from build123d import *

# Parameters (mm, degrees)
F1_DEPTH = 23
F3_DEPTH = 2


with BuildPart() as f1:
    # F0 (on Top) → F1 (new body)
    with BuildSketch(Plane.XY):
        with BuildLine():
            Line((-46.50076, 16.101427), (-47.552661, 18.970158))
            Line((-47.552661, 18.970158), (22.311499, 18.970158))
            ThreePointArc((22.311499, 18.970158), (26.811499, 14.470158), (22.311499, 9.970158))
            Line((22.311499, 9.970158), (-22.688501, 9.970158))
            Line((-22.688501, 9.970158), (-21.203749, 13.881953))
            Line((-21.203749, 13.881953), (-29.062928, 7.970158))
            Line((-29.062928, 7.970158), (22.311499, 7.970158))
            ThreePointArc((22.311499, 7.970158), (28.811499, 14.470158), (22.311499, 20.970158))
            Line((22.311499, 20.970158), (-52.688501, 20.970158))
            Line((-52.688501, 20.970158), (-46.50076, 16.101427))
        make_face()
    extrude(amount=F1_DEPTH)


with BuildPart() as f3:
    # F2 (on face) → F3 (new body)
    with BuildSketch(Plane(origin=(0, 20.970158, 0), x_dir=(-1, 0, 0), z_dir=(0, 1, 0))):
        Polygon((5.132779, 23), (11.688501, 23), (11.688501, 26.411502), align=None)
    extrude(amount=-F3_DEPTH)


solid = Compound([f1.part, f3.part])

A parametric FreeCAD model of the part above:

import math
import FreeCAD as App
import Part
import Sketcher
Q = App.Units.Quantity


def add_polygon(sketch, points):
    """Adds a closed chain of lines whose ends are joined by coincident constraints."""
    first, n = sketch.GeometryCount, len(points)
    for a, b in zip(points, points[1:] + points[:1]):
        sketch.addGeometry(Part.LineSegment(App.Vector(*a, 0), App.Vector(*b, 0)), False)
    for i in range(n):
        sketch.addConstraint(Sketcher.Constraint("Coincident", first + i, 2, first + (i + 1) % n, 1))

doc = App.newDocument("Part")
body = doc.addObject("PartDesign::Body", "Body")

sketch1 = body.newObject("Sketcher::SketchObject", "Sketch")
sketch1.AttachmentSupport = (doc.getObject("XY_Plane"), [""])
sketch1.MapMode = "FlatFace"
sketch1.addGeometry(Part.LineSegment(App.Vector(-46.5, 16.1, 0), App.Vector(-47.6, 19, 0)), False)
sketch1.addGeometry(Part.LineSegment(App.Vector(-47.6, 19, 0), App.Vector(22.3, 19, 0)), False)
sketch1.addGeometry(Part.ArcOfCircle(Part.Circle(App.Vector(22.3, 14.5, 0), App.Vector(0, 0, 1), 4.5), math.radians(-90), math.radians(90)), False)
sketch1.addGeometry(Part.LineSegment(App.Vector(22.3, 10, 0), App.Vector(-22.7, 10, 0)), False)
sketch1.addGeometry(Part.LineSegment(App.Vector(-22.7, 10, 0), App.Vector(-21.2, 13.9, 0)), False)
sketch1.addGeometry(Part.LineSegment(App.Vector(-21.2, 13.9, 0), App.Vector(-29.1, 8, 0)), False)
sketch1.addGeometry(Part.LineSegment(App.Vector(-29.1, 8, 0), App.Vector(22.3, 8, 0)), False)
sketch1.addGeometry(Part.ArcOfCircle(Part.Circle(App.Vector(22.3, 14.5, 0), App.Vector(0, 0, 1), 6.5), math.radians(-90), math.radians(90)), False)
sketch1.addGeometry(Part.LineSegment(App.Vector(22.3, 21, 0), App.Vector(-52.7, 21, 0)), False)
sketch1.addGeometry(Part.LineSegment(App.Vector(-52.7, 21, 0), App.Vector(-46.5, 16.1, 0)), False)
sketch1.addConstraint(Sketcher.Constraint("Coincident", 0, 2, 1, 1))
sketch1.addConstraint(Sketcher.Constraint("Tangent", 1, 2, 2, 2))
sketch1.addConstraint(Sketcher.Constraint("Tangent", 2, 1, 3, 1))
sketch1.addConstraint(Sketcher.Constraint("Coincident", 3, 2, 4, 1))
sketch1.addConstraint(Sketcher.Constraint("Coincident", 4, 2, 5, 1))
sketch1.addConstraint(Sketcher.Constraint("Coincident", 5, 2, 6, 1))
sketch1.addConstraint(Sketcher.Constraint("Tangent", 6, 2, 7, 1))
sketch1.addConstraint(Sketcher.Constraint("Tangent", 7, 2, 8, 1))
sketch1.addConstraint(Sketcher.Constraint("Coincident", 8, 2, 9, 1))
sketch1.addConstraint(Sketcher.Constraint("Coincident", 9, 2, 0, 1))
sketch1.addConstraint(Sketcher.Constraint("Horizontal", 1))
sketch1.addConstraint(Sketcher.Constraint("Horizontal", 3))
sketch1.addConstraint(Sketcher.Constraint("Horizontal", 6))
sketch1.addConstraint(Sketcher.Constraint("Horizontal", 8))
sketch1.addConstraint(Sketcher.Constraint("Coincident", 7, 3, 2, 3))
sketch1.addConstraint(Sketcher.Constraint("Radius", 2, Q("4.5 mm")))
sketch1.addConstraint(Sketcher.Constraint("Radius", 7, Q("6.5 mm")))
sketch1.addConstraint(Sketcher.Constraint("DistanceX", 3, 2, 3, 1, Q("45 mm")))
sketch1.addConstraint(Sketcher.Constraint("DistanceX", 8, 2, 8, 1, Q("75 mm")))
sketch1.addConstraint(Sketcher.Constraint("DistanceX", 1, 1, 1, 2, Q("69.86416 mm")))
sketch1.addConstraint(Sketcher.Constraint("DistanceX", -1, 1, 2, 3, Q("22.311499 mm")))
sketch1.addConstraint(Sketcher.Constraint("DistanceX", 0, 2, 9, 2, Q("1.051901 mm")))
sketch1.addConstraint(Sketcher.Constraint("Distance", 5, Q("9.83443 mm")))
sketch1.addConstraint(Sketcher.Constraint("DistanceX", 6, 1, 6, 2, Q("51.374427 mm")))
sketch1.addConstraint(Sketcher.Constraint("DistanceY", -1, 1, 0, 2, Q("18.970158 mm")))
sketch1.addConstraint(Sketcher.Constraint("DistanceX", 4, 2, -1, 1, Q("21.203749 mm")))
sketch1.addConstraint(Sketcher.Constraint("DistanceY", 9, 2, 0, 2, Q("2.868731 mm")))
pad1 = body.newObject("PartDesign::Pad", "Pad")
pad1.Profile = sketch1
pad1.Length = 23
body2 = doc.addObject("PartDesign::Body", "Body001")

sketch2 = body2.newObject("Sketcher::SketchObject", "Sketch001")
sketch2.AttachmentSupport = (doc.getObject("XZ_Plane001"), [""])
sketch2.MapMode = "FlatFace"
sketch2.AttachmentOffset = App.Placement(App.Vector(0, 0, -20.970158), App.Rotation())
add_polygon(sketch2, [(-5.1, 23), (-11.7, 23), (-11.7, 26.4)])
sketch2.addConstraint(Sketcher.Constraint("Horizontal", 0))
sketch2.addConstraint(Sketcher.Constraint("Vertical", 1))
sketch2.addConstraint(Sketcher.Constraint("DistanceY", -1, 1, 0, 2, Q("23 mm")))
sketch2.addConstraint(Sketcher.Constraint("DistanceY", 1, 1, 1, 2, Q("3.411502 mm")))
sketch2.addConstraint(Sketcher.Constraint("DistanceX", 0, 2, -1, 1, Q("11.688501 mm")))
sketch2.addConstraint(Sketcher.Constraint("DistanceX", 0, 2, 0, 1, Q("6.555722 mm")))
pad2 = body2.newObject("PartDesign::Pad", "Pad001")
pad2.Profile = sketch2
pad2.Length = 2

doc.recompute()
